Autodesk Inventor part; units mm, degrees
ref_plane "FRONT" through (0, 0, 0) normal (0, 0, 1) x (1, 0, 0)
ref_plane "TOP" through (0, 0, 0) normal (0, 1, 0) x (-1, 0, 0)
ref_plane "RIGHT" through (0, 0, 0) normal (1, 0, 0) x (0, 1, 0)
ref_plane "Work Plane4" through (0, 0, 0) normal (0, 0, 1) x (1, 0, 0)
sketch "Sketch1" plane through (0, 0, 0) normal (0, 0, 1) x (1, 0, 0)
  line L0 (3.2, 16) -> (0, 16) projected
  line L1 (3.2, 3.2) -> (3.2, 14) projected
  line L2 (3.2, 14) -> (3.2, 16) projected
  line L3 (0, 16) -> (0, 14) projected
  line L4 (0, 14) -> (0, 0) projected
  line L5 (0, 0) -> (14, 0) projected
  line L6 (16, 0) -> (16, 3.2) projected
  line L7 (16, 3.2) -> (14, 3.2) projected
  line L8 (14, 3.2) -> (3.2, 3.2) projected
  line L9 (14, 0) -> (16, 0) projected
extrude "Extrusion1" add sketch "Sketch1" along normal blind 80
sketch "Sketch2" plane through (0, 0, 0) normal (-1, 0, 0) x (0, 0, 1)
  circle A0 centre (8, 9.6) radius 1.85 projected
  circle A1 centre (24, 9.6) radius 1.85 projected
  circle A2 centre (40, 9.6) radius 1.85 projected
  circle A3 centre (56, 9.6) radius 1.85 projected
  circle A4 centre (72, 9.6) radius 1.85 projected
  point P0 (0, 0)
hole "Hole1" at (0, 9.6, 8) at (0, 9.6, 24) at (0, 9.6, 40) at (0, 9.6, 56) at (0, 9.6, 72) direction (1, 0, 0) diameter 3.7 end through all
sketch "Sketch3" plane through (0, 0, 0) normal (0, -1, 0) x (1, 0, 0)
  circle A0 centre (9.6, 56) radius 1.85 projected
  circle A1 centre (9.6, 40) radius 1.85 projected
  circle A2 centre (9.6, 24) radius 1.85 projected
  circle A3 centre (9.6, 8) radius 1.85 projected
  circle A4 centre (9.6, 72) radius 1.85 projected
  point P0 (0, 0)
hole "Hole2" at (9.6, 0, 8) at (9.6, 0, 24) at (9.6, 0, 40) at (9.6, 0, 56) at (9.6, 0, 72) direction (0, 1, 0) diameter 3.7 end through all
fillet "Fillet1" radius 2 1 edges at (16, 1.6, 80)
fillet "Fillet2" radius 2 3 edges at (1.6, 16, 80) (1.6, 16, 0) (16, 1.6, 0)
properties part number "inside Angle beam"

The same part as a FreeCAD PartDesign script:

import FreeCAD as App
import Part
import Sketcher
Q = App.Units.Quantity


def edges_at(feature, points):
    """Names of the edges that pass closest to the given points."""
    edges = feature.Shape.Edges
    near = lambda p: min(range(len(edges)), key=lambda i: edges[i].distToShape(Part.Vertex(*p))[0])
    return sorted({f"Edge{near(p) + 1}" for p in points})

doc = App.newDocument("Part")
body = doc.addObject("PartDesign::Body", "Body")

# Sketch on XY plane
sketch1 = body.newObject("Sketcher::SketchObject", "Sketch")
sketch1.AttachmentSupport = (doc.getObject("XY_Plane"), [""])
sketch1.MapMode = "FlatFace"
sketch1.addGeometry(Part.LineSegment(App.Vector(3.2, 3.2, 0), App.Vector(3.2, 16, 0)), False)
sketch1.addGeometry(Part.LineSegment(App.Vector(3.2, 16, 0), App.Vector(0, 16, 0)), False)
sketch1.addGeometry(Part.LineSegment(App.Vector(0, 16, 0), App.Vector(0, 0, 0)), False)
sketch1.addGeometry(Part.LineSegment(App.Vector(0, 0, 0), App.Vector(16, 0, 0)), False)
sketch1.addGeometry(Part.LineSegment(App.Vector(16, 0, 0), App.Vector(16, 3.2, 0)), False)
sketch1.addGeometry(Part.LineSegment(App.Vector(16, 3.2, 0), App.Vector(3.2, 3.2, 0)), False)
sketch1.addConstraint(Sketcher.Constraint("Coincident", 0, 2, 1, 1))
sketch1.addConstraint(Sketcher.Constraint("Coincident", 1, 2, 2, 1))
sketch1.addConstraint(Sketcher.Constraint("Coincident", 2, 2, 3, 1))
sketch1.addConstraint(Sketcher.Constraint("Coincident", 3, 2, 4, 1))
sketch1.addConstraint(Sketcher.Constraint("Coincident", 4, 2, 5, 1))
sketch1.addConstraint(Sketcher.Constraint("Coincident", 5, 2, 0, 1))
sketch1.addConstraint(Sketcher.Constraint("Vertical", 0))
sketch1.addConstraint(Sketcher.Constraint("Horizontal", 1))
sketch1.addConstraint(Sketcher.Constraint("Vertical", 2))
sketch1.addConstraint(Sketcher.Constraint("Horizontal", 3))
sketch1.addConstraint(Sketcher.Constraint("Vertical", 4))
sketch1.addConstraint(Sketcher.Constraint("Horizontal", 5))
sketch1.addConstraint(Sketcher.Constraint("Coincident", 2, 2, -1, 1))
sketch1.addConstraint(Sketcher.Constraint("Equal", 5, 0))
sketch1.addConstraint(Sketcher.Constraint("Equal", 3, 2))
sketch1.addConstraint(Sketcher.Constraint("DistanceX", 3, 1, 3, 2, Q("16 mm")))
sketch1.addConstraint(Sketcher.Constraint("DistanceX", 1, 2, 1, 1, Q("3.2 mm")))
pad1 = body.newObject("PartDesign::Pad", "Pad")
pad1.Profile = sketch1
pad1.Length = 80

# Sketch on YZ plane
sketch2 = body.newObject("Sketcher::SketchObject", "Sketch001")
sketch2.AttachmentSupport = (doc.getObject("YZ_Plane"), [""])
sketch2.MapMode = "FlatFace"
sketch2.addGeometry(Part.Circle(App.Vector(9.6, 8, 0), App.Vector(0, 0, 1), 1.9), False)
sketch2.addGeometry(Part.Circle(App.Vector(9.6, 24, 0), App.Vector(0, 0, 1), 1.9), False)
sketch2.addGeometry(Part.Circle(App.Vector(9.6, 40, 0), App.Vector(0, 0, 1), 1.9), False)
sketch2.addGeometry(Part.Circle(App.Vector(9.6, 56, 0), App.Vector(0, 0, 1), 1.9), False)
sketch2.addGeometry(Part.Circle(App.Vector(9.6, 72, 0), App.Vector(0, 0, 1), 1.9), False)
sketch2.addConstraint(Sketcher.Constraint("Equal", 0, 1))
sketch2.addConstraint(Sketcher.Constraint("Equal", 1, 2))
sketch2.addConstraint(Sketcher.Constraint("Equal", 2, 3))
sketch2.addConstraint(Sketcher.Constraint("Equal", 3, 4))
sketch2.addConstraint(Sketcher.Constraint("Vertical", 0, 3, 1, 3))
sketch2.addConstraint(Sketcher.Constraint("Vertical", 1, 3, 2, 3))
sketch2.addConstraint(Sketcher.Constraint("Vertical", 2, 3, 3, 3))
sketch2.addConstraint(Sketcher.Constraint("Vertical", 3, 3, 4, 3))
sketch2.addConstraint(Sketcher.Constraint("Diameter", 0, Q("3.7 mm")))
sketch2.addConstraint(Sketcher.Constraint("DistanceY", -1, 1, 0, 3, Q("8 mm")))
sketch2.addConstraint(Sketcher.Constraint("DistanceY", -1, 1, 1, 3, Q("24 mm")))
sketch2.addConstraint(Sketcher.Constraint("DistanceY", -1, 1, 2, 3, Q("40 mm")))
sketch2.addConstraint(Sketcher.Constraint("DistanceY", -1, 1, 3, 3, Q("56 mm")))
sketch2.addConstraint(Sketcher.Constraint("DistanceY", -1, 1, 4, 3, Q("72 mm")))
sketch2.addConstraint(Sketcher.Constraint("DistanceX", -1, 1, 0, 3, Q("9.6 mm")))
doc.recompute()
hole = body.newObject("PartDesign::Hole", "Hole")
hole.Profile = sketch2
hole.ThreadType = "None"
hole.Diameter = 3.7
hole.DepthType = "ThroughAll"
hole.Reversed = True

# Sketch on XZ plane
sketch3 = body.newObject("Sketcher::SketchObject", "Sketch002")
sketch3.AttachmentSupport = (doc.getObject("XZ_Plane"), [""])
sketch3.MapMode = "FlatFace"
sketch3.addGeometry(Part.Circle(App.Vector(9.6, 8, 0), App.Vector(0, 0, 1), 1.9), False)
sketch3.addGeometry(Part.Circle(App.Vector(9.6, 24, 0), App.Vector(0, 0, 1), 1.9), False)
sketch3.addGeometry(Part.Circle(App.Vector(9.6, 40, 0), App.Vector(0, 0, 1), 1.9), False)
sketch3.addGeometry(Part.Circle(App.Vector(9.6, 56, 0), App.Vector(0, 0, 1), 1.9), False)
sketch3.addGeometry(Part.Circle(App.Vector(9.6, 72, 0), App.Vector(0, 0, 1), 1.9), False)
sketch3.addConstraint(Sketcher.Constraint("Equal", 0, 1))
sketch3.addConstraint(Sketcher.Constraint("Equal", 1, 2))
sketch3.addConstraint(Sketcher.Constraint("Equal", 2, 3))
sketch3.addConstraint(Sketcher.Constraint("Equal", 3, 4))
sketch3.addConstraint(Sketcher.Constraint("Vertical", 0, 3, 1, 3))
sketch3.addConstraint(Sketcher.Constraint("Vertical", 1, 3, 2, 3))
sketch3.addConstraint(Sketcher.Constraint("Vertical", 2, 3, 3, 3))
sketch3.addConstraint(Sketcher.Constraint("Vertical", 3, 3, 4, 3))
sketch3.addConstraint(Sketcher.Constraint("Diameter", 0, Q("3.7 mm")))
sketch3.addConstraint(Sketcher.Constraint("DistanceY", -1, 1, 0, 3, Q("8 mm")))
sketch3.addConstraint(Sketcher.Constraint("DistanceY", -1, 1, 1, 3, Q("24 mm")))
sketch3.addConstraint(Sketcher.Constraint("DistanceY", -1, 1, 2, 3, Q("40 mm")))
sketch3.addConstraint(Sketcher.Constraint("DistanceY", -1, 1, 3, 3, Q("56 mm")))
sketch3.addConstraint(Sketcher.Constraint("DistanceY", -1, 1, 4, 3, Q("72 mm")))
sketch3.addConstraint(Sketcher.Constraint("DistanceX", -1, 1, 0, 3, Q("9.6 mm")))
doc.recompute()
hole2 = body.newObject("PartDesign::Hole", "Hole001")
hole2.Profile = sketch3
hole2.ThreadType = "None"
hole2.Diameter = 3.7
hole2.DepthType = "ThroughAll"
doc.recompute()

fillet = body.newObject("PartDesign::Fillet", "Fillet")
fillet.Base = (hole2, edges_at(hole2, [(16, 1.6, 80)]))
fillet.Radius = 2
doc.recompute()

fillet2 = body.newObject("PartDesign::Fillet", "Fillet001")
fillet2.Base = (fillet, edges_at(fillet, [(1.6, 16, 80), (1.6, 16, 0), (16, 1.6, 0)]))
fillet2.Radius = 2

doc.recompute()
